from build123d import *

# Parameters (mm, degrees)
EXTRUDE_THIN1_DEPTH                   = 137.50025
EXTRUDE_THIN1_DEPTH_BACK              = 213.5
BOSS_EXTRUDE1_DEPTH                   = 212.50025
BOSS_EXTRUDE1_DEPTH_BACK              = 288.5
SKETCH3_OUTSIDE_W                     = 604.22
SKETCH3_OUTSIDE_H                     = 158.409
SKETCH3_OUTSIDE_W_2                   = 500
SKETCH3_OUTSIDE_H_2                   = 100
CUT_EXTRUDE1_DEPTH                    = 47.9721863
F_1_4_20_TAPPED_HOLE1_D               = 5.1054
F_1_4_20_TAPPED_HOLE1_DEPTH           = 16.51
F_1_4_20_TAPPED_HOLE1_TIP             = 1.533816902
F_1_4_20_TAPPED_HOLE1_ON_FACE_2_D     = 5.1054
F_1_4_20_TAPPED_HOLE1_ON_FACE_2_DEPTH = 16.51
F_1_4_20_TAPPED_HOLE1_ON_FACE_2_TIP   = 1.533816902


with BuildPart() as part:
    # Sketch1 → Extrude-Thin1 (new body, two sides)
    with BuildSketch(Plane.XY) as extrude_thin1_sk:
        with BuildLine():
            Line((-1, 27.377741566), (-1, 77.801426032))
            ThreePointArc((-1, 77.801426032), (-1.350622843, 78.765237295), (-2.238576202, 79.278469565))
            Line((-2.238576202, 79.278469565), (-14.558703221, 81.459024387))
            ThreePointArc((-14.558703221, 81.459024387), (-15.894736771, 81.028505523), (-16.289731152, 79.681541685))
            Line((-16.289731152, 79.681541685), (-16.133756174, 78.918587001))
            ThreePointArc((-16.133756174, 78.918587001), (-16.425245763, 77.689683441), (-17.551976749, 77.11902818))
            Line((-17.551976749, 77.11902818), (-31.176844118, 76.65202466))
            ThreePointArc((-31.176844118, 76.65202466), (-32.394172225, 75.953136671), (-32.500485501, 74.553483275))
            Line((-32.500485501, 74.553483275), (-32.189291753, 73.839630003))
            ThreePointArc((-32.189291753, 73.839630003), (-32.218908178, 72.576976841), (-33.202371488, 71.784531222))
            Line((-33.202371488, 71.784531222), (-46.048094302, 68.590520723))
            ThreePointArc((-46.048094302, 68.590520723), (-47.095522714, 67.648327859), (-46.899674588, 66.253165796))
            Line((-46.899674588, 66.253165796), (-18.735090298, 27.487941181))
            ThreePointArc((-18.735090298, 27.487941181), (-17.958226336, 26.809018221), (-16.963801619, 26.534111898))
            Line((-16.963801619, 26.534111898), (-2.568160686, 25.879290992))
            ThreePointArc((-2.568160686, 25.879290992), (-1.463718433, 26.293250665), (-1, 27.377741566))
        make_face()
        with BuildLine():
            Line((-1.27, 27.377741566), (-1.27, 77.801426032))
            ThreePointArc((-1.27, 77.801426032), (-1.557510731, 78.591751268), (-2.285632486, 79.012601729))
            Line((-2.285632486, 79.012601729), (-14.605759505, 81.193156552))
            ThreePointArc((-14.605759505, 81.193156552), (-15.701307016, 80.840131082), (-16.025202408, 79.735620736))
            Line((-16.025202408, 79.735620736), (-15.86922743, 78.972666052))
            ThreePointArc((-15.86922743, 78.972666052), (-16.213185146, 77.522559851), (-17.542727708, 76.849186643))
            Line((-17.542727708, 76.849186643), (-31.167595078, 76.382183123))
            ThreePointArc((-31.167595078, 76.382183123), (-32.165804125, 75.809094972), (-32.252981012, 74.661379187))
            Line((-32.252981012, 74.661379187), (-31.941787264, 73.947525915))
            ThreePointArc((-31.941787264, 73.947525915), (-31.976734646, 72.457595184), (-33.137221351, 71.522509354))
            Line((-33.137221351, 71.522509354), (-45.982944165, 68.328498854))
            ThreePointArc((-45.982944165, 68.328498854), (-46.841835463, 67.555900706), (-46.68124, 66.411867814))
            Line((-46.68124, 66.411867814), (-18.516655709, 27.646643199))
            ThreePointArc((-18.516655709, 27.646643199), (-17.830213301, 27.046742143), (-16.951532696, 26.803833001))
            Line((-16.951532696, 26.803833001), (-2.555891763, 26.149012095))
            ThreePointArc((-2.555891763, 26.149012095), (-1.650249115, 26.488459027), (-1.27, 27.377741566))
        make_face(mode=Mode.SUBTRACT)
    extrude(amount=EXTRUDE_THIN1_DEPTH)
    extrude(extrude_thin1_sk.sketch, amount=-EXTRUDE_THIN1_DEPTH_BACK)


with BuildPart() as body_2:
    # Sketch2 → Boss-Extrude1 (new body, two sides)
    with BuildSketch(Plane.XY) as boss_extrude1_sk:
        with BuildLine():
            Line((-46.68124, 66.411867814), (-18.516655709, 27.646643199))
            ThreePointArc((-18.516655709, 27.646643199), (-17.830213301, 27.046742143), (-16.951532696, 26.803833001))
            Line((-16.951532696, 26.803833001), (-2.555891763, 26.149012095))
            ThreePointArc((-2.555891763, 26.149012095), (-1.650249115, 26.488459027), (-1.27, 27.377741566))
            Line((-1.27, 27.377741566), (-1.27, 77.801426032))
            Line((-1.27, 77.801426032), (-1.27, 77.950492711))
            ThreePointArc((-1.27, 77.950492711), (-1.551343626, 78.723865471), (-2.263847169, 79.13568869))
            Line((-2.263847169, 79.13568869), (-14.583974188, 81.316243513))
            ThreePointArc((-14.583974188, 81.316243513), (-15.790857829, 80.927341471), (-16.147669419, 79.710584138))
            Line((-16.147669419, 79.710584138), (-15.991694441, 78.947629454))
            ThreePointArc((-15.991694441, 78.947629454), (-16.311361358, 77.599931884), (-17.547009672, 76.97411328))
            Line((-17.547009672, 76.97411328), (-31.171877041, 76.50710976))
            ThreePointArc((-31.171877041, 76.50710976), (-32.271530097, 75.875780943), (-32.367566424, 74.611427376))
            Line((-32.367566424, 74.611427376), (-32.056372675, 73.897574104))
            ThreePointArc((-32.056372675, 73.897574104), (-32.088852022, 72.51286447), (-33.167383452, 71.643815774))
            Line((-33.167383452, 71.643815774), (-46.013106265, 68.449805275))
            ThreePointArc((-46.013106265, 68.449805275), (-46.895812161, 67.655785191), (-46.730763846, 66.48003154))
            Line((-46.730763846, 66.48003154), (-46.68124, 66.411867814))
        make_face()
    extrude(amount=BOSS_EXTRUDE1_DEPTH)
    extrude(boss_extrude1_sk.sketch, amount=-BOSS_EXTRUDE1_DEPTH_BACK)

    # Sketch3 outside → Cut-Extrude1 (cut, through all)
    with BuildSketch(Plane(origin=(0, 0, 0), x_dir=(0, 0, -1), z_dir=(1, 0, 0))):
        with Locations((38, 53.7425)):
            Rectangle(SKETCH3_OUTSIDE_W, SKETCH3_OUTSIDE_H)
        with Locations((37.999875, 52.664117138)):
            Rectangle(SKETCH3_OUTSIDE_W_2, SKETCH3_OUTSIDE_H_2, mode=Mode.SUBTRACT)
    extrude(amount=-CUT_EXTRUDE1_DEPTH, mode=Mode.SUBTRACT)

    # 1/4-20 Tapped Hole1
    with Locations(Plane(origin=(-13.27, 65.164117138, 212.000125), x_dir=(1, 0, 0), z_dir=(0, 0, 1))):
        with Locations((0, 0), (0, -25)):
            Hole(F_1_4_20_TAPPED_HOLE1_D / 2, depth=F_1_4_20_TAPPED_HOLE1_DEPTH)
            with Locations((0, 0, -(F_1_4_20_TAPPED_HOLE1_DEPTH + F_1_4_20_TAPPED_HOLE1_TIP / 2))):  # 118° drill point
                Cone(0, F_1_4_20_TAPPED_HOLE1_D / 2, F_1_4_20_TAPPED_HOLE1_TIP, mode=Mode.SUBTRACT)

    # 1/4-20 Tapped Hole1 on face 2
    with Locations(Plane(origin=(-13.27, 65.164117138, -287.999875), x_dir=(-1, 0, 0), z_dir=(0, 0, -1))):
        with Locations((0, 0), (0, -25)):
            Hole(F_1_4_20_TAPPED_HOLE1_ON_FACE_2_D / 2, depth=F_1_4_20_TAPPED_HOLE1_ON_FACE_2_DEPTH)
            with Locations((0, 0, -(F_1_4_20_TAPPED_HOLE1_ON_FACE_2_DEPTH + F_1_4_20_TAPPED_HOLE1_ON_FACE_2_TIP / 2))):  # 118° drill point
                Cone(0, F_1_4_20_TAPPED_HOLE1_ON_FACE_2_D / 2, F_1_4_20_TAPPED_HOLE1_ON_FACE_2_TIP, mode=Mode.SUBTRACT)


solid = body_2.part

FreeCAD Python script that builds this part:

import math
import FreeCAD as App
import Part
import Sketcher
from FreeCAD import Vector
Q = App.Units.Quantity

doc = App.newDocument("Part")
body = doc.addObject("PartDesign::Body", "Body")

# Sketch on XY plane
sketch1 = body.newObject("Sketcher::SketchObject", "Sketch")
sketch1.AttachmentSupport = (doc.getObject("XY_Plane"), [""])
sketch1.MapMode = "FlatFace"
sketch1.addGeometry([
    Part.LineSegment(Vector(-1, 27.4, 0), Vector(-1, 77.8, 0)),  # 0
    Part.ArcOfCircle(Part.Circle(Vector(-2.5, 77.8, 0), Vector(0, 0, 1), 1.5), math.radians(0), math.radians(80)),  # 1
    Part.LineSegment(Vector(-2.2, 79.3, 0), Vector(-14.6, 81.5, 0)),  # 2
    Part.ArcOfCircle(Part.Circle(Vector(-14.8, 80, 0), Vector(0, 0, 1), 1.5), math.radians(80), math.radians(192)),  # 3
    Part.LineSegment(Vector(-16.3, 79.7, 0), Vector(-16.1, 78.9, 0)),  # 4
    Part.ArcOfCircle(Part.Circle(Vector(-17.6, 78.6, 0), Vector(0, 0, 1), 1.5), math.radians(-88), math.radians(12)),  # 5
    Part.LineSegment(Vector(-17.6, 77.1, 0), Vector(-31.2, 76.7, 0)),  # 6
    Part.ArcOfCircle(Part.Circle(Vector(-31.1, 75.2, 0), Vector(0, 0, 1), 1.5), math.radians(92), math.radians(204)),  # 7
    Part.LineSegment(Vector(-32.5, 74.6, 0), Vector(-32.2, 73.8, 0)),  # 8
    Part.ArcOfCircle(Part.Circle(Vector(-33.6, 73.2, 0), Vector(0, 0, 1), 1.5), math.radians(-76), math.radians(24)),  # 9
    Part.LineSegment(Vector(-33.2, 71.8, 0), Vector(-46, 68.6, 0)),  # 10
    Part.ArcOfCircle(Part.Circle(Vector(-45.7, 67.1, 0), Vector(0, 0, 1), 1.5), math.radians(104), math.radians(216)),  # 11
    Part.LineSegment(Vector(-46.9, 66.3, 0), Vector(-18.7, 27.5, 0)),  # 12
    Part.ArcOfCircle(Part.Circle(Vector(-16.9, 28.9, 0), Vector(0, 0, 1), 2.3), math.radians(-144), math.radians(-93)),  # 13
    Part.LineSegment(Vector(-17, 26.5, 0), Vector(-2.6, 25.9, 0)),  # 14
    Part.ArcOfCircle(Part.Circle(Vector(-2.5, 27.4, 0), Vector(0, 0, 1), 1.5), math.radians(-93), math.radians(0)),  # 15
    Part.LineSegment(Vector(-1.3, 77.8, 0), Vector(-1.3, 27.4, 0)),  # 16
    Part.ArcOfCircle(Part.Circle(Vector(-2.5, 27.4, 0), Vector(0, 0, 1), 1.2), math.radians(-93), math.radians(0)),  # 17
    Part.LineSegment(Vector(-2.6, 26.1, 0), Vector(-17, 26.8, 0)),  # 18
    Part.ArcOfCircle(Part.Circle(Vector(-16.9, 28.9, 0), Vector(0, 0, 1), 2), math.radians(-144), math.radians(-93)),  # 19
    Part.LineSegment(Vector(-18.5, 27.6, 0), Vector(-46.7, 66.4, 0)),  # 20
    Part.ArcOfCircle(Part.Circle(Vector(-45.7, 67.1, 0), Vector(0, 0, 1), 1.2), math.radians(104), math.radians(216)),  # 21
    Part.LineSegment(Vector(-46, 68.3, 0), Vector(-33.1, 71.5, 0)),  # 22
    Part.ArcOfCircle(Part.Circle(Vector(-33.6, 73.2, 0), Vector(0, 0, 1), 1.8), math.radians(-76), math.radians(24)),  # 23
    Part.LineSegment(Vector(-31.9, 73.9, 0), Vector(-32.3, 74.7, 0)),  # 24
    Part.ArcOfCircle(Part.Circle(Vector(-31.1, 75.2, 0), Vector(0, 0, 1), 1.2), math.radians(92), math.radians(204)),  # 25
    Part.LineSegment(Vector(-31.2, 76.4, 0), Vector(-17.5, 76.8, 0)),  # 26
    Part.ArcOfCircle(Part.Circle(Vector(-17.6, 78.6, 0), Vector(0, 0, 1), 1.8), math.radians(-88), math.radians(12)),  # 27
    Part.LineSegment(Vector(-15.9, 79, 0), Vector(-16, 79.7, 0)),  # 28
    Part.ArcOfCircle(Part.Circle(Vector(-14.8, 80, 0), Vector(0, 0, 1), 1.2), math.radians(80), math.radians(192)),  # 29
    Part.LineSegment(Vector(-14.6, 81.2, 0), Vector(-2.3, 79, 0)),  # 30
    Part.ArcOfCircle(Part.Circle(Vector(-2.5, 77.8, 0), Vector(0, 0, 1), 1.2), math.radians(0), math.radians(80)),  # 31
], False)
sketch1.addConstraint([
    Sketcher.Constraint("Tangent", 0, 2, 1, 1),
    Sketcher.Constraint("Tangent", 1, 2, 2, 1),
    Sketcher.Constraint("Tangent", 2, 2, 3, 1),
    Sketcher.Constraint("Tangent", 3, 2, 4, 1),
    Sketcher.Constraint("Tangent", 4, 2, 5, 2),
    Sketcher.Constraint("Tangent", 5, 1, 6, 1),
    Sketcher.Constraint("Tangent", 6, 2, 7, 1),
    Sketcher.Constraint("Tangent", 7, 2, 8, 1),
    Sketcher.Constraint("Tangent", 8, 2, 9, 2),
    Sketcher.Constraint("Tangent", 9, 1, 10, 1),
    Sketcher.Constraint("Tangent", 10, 2, 11, 1),
    Sketcher.Constraint("Tangent", 11, 2, 12, 1),
    Sketcher.Constraint("Tangent", 12, 2, 13, 1),
    Sketcher.Constraint("Tangent", 13, 2, 14, 1),
    Sketcher.Constraint("Tangent", 14, 2, 15, 1),
    Sketcher.Constraint("Tangent", 15, 2, 0, 1),
    Sketcher.Constraint("Tangent", 16, 2, 17, 2),
    Sketcher.Constraint("Tangent", 17, 1, 18, 1),
    Sketcher.Constraint("Tangent", 18, 2, 19, 2),
    Sketcher.Constraint("Tangent", 19, 1, 20, 1),
    Sketcher.Constraint("Tangent", 20, 2, 21, 2),
    Sketcher.Constraint("Tangent", 21, 1, 22, 1),
    Sketcher.Constraint("Tangent", 22, 2, 23, 1),
    Sketcher.Constraint("Tangent", 23, 2, 24, 1),
    Sketcher.Constraint("Tangent", 24, 2, 25, 2),
    Sketcher.Constraint("Tangent", 25, 1, 26, 1),
    Sketcher.Constraint("Tangent", 26, 2, 27, 1),
    Sketcher.Constraint("Tangent", 27, 2, 28, 1),
    Sketcher.Constraint("Tangent", 28, 2, 29, 2),
    Sketcher.Constraint("Tangent", 29, 1, 30, 1),
    Sketcher.Constraint("Tangent", 30, 2, 31, 2),
    Sketcher.Constraint("Tangent", 31, 1, 16, 1),
    Sketcher.Constraint("Vertical", 0),
    Sketcher.Constraint("Vertical", 16),
    Sketcher.Constraint("Coincident", 17, 3, 15, 3),
    Sketcher.Constraint("Coincident", 19, 3, 13, 3),
    Sketcher.Constraint("Coincident", 21, 3, 11, 3),
    Sketcher.Constraint("Coincident", 23, 3, 9, 3),
    Sketcher.Constraint("Coincident", 25, 3, 7, 3),
    Sketcher.Constraint("Coincident", 27, 3, 5, 3),
    Sketcher.Constraint("Coincident", 29, 3, 3, 3),
    Sketcher.Constraint("Coincident", 31, 3, 1, 3),
    Sketcher.Constraint("Equal", 1, 3),
    Sketcher.Constraint("Equal", 3, 5),
    Sketcher.Constraint("Equal", 5, 7),
    Sketcher.Constraint("Equal", 7, 9),
    Sketcher.Constraint("Equal", 9, 11),
    Sketcher.Constraint("Equal", 11, 15),
    Sketcher.Constraint("Equal", 17, 21),
    Sketcher.Constraint("Equal", 21, 25),
    Sketcher.Constraint("Equal", 23, 27),
    Sketcher.Constraint("Equal", 25, 29),
    Sketcher.Constraint("Parallel", 14, 18),
    Sketcher.Constraint("Parallel", 10, 22),
    Sketcher.Constraint("Equal", 4, 8),
    Sketcher.Constraint("Radius", 1, 1.5),
    Sketcher.Constraint("Angle", 12, Q("-54 deg")),
    Sketcher.Constraint("Radius", 17, 1.23),
    Sketcher.Constraint("DistanceX", 0, 2, -1, 1, 1.0),
    Sketcher.Constraint("Radius", 13, 2.319726),
    Sketcher.Constraint("DistanceX", 13, 2, -1, 1, 16.963802),
    Sketcher.Constraint("DistanceY", -1, 1, 21, 1, 68.328499),
    Sketcher.Constraint("DistanceY", -1, 1, 30, 2, 79.012602),
    Sketcher.Constraint("DistanceX", 7, 3, 5, 3, 13.5221),
    Sketcher.Constraint("DistanceY", 13, 3, 11, 3, 38.283402),
    Sketcher.Constraint("DistanceY", 15, 3, 13, 3, 1.473701),
    Sketcher.Constraint("DistanceY", 9, 1, 8, 2, 2.055099),
    Sketcher.Constraint("DistanceY", 22, 2, 9, 3, 1.717699),
    Sketcher.Constraint("DistanceX", 7, 2, 23, 2, 0.558698),
    Sketcher.Constraint("DistanceY", 26, 2, 4, 2, 2.0694),
    Sketcher.Constraint("Distance", 2, 12.511609),
    Sketcher.Constraint("Distance", 6, 13.632868),
])
pad1 = body.newObject("PartDesign::Pad", "Pad")
pad1.Profile = sketch1
pad1.Type = "TwoLengths"
pad1.Length = 137.50025
pad1.Length2 = 213.5
body2 = doc.addObject("PartDesign::Body", "Body001")

# Sketch on XY plane
sketch2 = body2.newObject("Sketcher::SketchObject", "Sketch001")
sketch2.AttachmentSupport = (doc.getObject("XY_Plane001"), [""])
sketch2.MapMode = "FlatFace"
sketch2.addGeometry([
    Part.LineSegment(Vector(-46.68, 66.41, 0), Vector(-18.52, 27.65, 0)),  # 0
    Part.ArcOfCircle(Part.Circle(Vector(-16.86, 28.85, 0), Vector(0, 0, 1), 2.05), math.radians(-144), math.radians(-93)),  # 1
    Part.LineSegment(Vector(-16.95, 26.8, 0), Vector(-2.56, 26.15, 0)),  # 2
    Part.ArcOfCircle(Part.Circle(Vector(-2.5, 27.38, 0), Vector(0, 0, 1), 1.23), math.radians(-93), math.radians(0)),  # 3
    Part.LineSegment(Vector(-1.27, 27.38, 0), Vector(-1.27, 77.95, 0)),  # 4
    Part.ArcOfCircle(Part.Circle(Vector(-2.47, 77.95, 0), Vector(0, 0, 1), 1.2), math.radians(0), math.radians(80)),  # 5
    Part.LineSegment(Vector(-2.26, 79.14, 0), Vector(-14.58, 81.32, 0)),  # 6
    Part.ArcOfCircle(Part.Circle(Vector(-14.82, 79.98, 0), Vector(0, 0, 1), 1.36), math.radians(80), math.radians(192)),  # 7
    Part.LineSegment(Vector(-16.15, 79.71, 0), Vector(-15.99, 78.95, 0)),  # 8
    Part.ArcOfCircle(Part.Circle(Vector(-17.6, 78.62, 0), Vector(0, 0, 1), 1.65), math.radians(-88), math.radians(12)),  # 9
    Part.LineSegment(Vector(-17.55, 76.97, 0), Vector(-31.17, 76.51, 0)),  # 10
    Part.ArcOfCircle(Part.Circle(Vector(-31.13, 75.15, 0), Vector(0, 0, 1), 1.36), math.radians(92), math.radians(204)),  # 11
    Part.LineSegment(Vector(-32.37, 74.61, 0), Vector(-32.06, 73.9, 0)),  # 12
    Part.ArcOfCircle(Part.Circle(Vector(-33.56, 73.24, 0), Vector(0, 0, 1), 1.65), math.radians(-76), math.radians(24)),  # 13
    Part.LineSegment(Vector(-33.17, 71.64, 0), Vector(-46.01, 68.45, 0)),  # 14
    Part.ArcOfCircle(Part.Circle(Vector(-45.71, 67.22, 0), Vector(0, 0, 1), 1.26), math.radians(104), math.radians(216)),  # 15
    Part.LineSegment(Vector(-46.73, 66.48, 0), Vector(-46.68, 66.41, 0)),  # 16
], False)
sketch2.addConstraint([
    Sketcher.Constraint("Tangent", 0, 2, 1, 1),
    Sketcher.Constraint("Tangent", 1, 2, 2, 1),
    Sketcher.Constraint("Tangent", 2, 2, 3, 1),
    Sketcher.Constraint("Tangent", 3, 2, 4, 1),
    Sketcher.Constraint("Tangent", 4, 2, 5, 1),
    Sketcher.Constraint("Tangent", 5, 2, 6, 1),
    Sketcher.Constraint("Tangent", 6, 2, 7, 1),
    Sketcher.Constraint("Tangent", 7, 2, 8, 1),
    Sketcher.Constraint("Tangent", 8, 2, 9, 2),
    Sketcher.Constraint("Tangent", 9, 1, 10, 1),
    Sketcher.Constraint("Tangent", 10, 2, 11, 1),
    Sketcher.Constraint("Tangent", 11, 2, 12, 1),
    Sketcher.Constraint("Tangent", 12, 2, 13, 2),
    Sketcher.Constraint("Tangent", 13, 1, 14, 1),
    Sketcher.Constraint("Tangent", 14, 2, 15, 1),
    Sketcher.Constraint("Tangent", 15, 2, 16, 1),
    Sketcher.Constraint("Coincident", 16, 2, 0, 1),
    Sketcher.Constraint("Vertical", 4),
    Sketcher.Constraint("Equal", 7, 11),
    Sketcher.Constraint("Equal", 9, 13),
    Sketcher.Constraint("Parallel", 0, 16),
    Sketcher.Constraint("Equal", 8, 12),
    Sketcher.Constraint("Angle", 0, Q("-54 deg")),
    Sketcher.Constraint("Radius", 3, 1.23),
    Sketcher.Constraint("Radius", 7, 1.355),
    Sketcher.Constraint("Radius", 9, 1.645),
    Sketcher.Constraint("DistanceX", 3, 3, -1, 1, 2.5),
    Sketcher.Constraint("Radius", 1, 2.049726),
    Sketcher.Constraint("Radius", 5, 1.203617),
    Sketcher.Constraint("Radius", 15, 1.264104),
    Sketcher.Constraint("DistanceY", 4, 1, 4, 2, 50.572751),
    Sketcher.Constraint("DistanceY", 3, 3, 1, 3, 1.473701),
    Sketcher.Constraint("DistanceX", 11, 3, 9, 3, 13.5221),
    Sketcher.Constraint("DistanceX", 13, 3, 5, 3, 31.0907),
    Sketcher.Constraint("DistanceX", 1, 3, 2, 2, 14.3025),
    Sketcher.Constraint("DistanceY", 13, 3, 10, 2, 3.266901),
    Sketcher.Constraint("Distance", 6, 12.511609),
    Sketcher.Constraint("Distance", 10, 13.632868),
    Sketcher.Constraint("DistanceY", -1, 1, 3, 3, 27.377742),
    Sketcher.Constraint("DistanceY", -1, 1, 7, 3, 79.981981),
    Sketcher.Constraint("DistanceX", 9, 3, -1, 1, 17.60336),
    Sketcher.Constraint("DistanceX", 15, 3, -1, 1, 45.708082),
    Sketcher.Constraint("DistanceX", 16, 2, -1, 1, 46.68124),
])
pad2 = body2.newObject("PartDesign::Pad", "Pad001")
pad2.Profile = sketch2
pad2.Type = "TwoLengths"
pad2.Length = 212.50025
pad2.Length2 = 288.5

# Sketch on YZ plane
sketch3 = body2.newObject("Sketcher::SketchObject", "Sketch002")
sketch3.AttachmentSupport = (doc.getObject("YZ_Plane001"), [""])
sketch3.MapMode = "FlatFace"
sketch3.addGeometry([
    Part.LineSegment(Vector(133, 264, 0), Vector(-25, 264, 0)),  # 0
    Part.LineSegment(Vector(-25, 264, 0), Vector(-25, -340, 0)),  # 1
    Part.LineSegment(Vector(-25, -340, 0), Vector(133, -340, 0)),  # 2
    Part.LineSegment(Vector(133, -340, 0), Vector(133, 264, 0)),  # 3
    Part.LineSegment(Vector(3, -288, 0), Vector(3, 212, 0)),  # 4
    Part.LineSegment(Vector(3, 212, 0), Vector(103, 212, 0)),  # 5
    Part.LineSegment(Vector(103, 212, 0), Vector(103, -288, 0)),  # 6
    Part.LineSegment(Vector(103, -288, 0), Vector(3, -288, 0)),  # 7
], False)
sketch3.addConstraint([
    Sketcher.Constraint("Coincident", 0, 2, 1, 1),
    Sketcher.Constraint("Coincident", 1, 2, 2, 1),
    Sketcher.Constraint("Coincident", 2, 2, 3, 1),
    Sketcher.Constraint("Coincident", 3, 2, 0, 1),
    Sketcher.Constraint("Coincident", 4, 2, 5, 1),
    Sketcher.Constraint("Coincident", 5, 2, 6, 1),
    Sketcher.Constraint("Coincident", 6, 2, 7, 1),
    Sketcher.Constraint("Coincident", 7, 2, 4, 1),
    Sketcher.Constraint("Horizontal", 0),
    Sketcher.Constraint("Vertical", 1),
    Sketcher.Constraint("Horizontal", 2),
    Sketcher.Constraint("Vertical", 3),
    Sketcher.Constraint("Vertical", 4),
    Sketcher.Constraint("Horizontal", 5),
    Sketcher.Constraint("Vertical", 6),
    Sketcher.Constraint("Horizontal", 7),
    Sketcher.Constraint("DistanceX", 5, 1, 5, 2, 100.0),
    Sketcher.Constraint("DistanceY", 4, 1, 4, 2, 500.0),
    Sketcher.Constraint("DistanceY", 1, 2, 1, 1, 604.22),
    Sketcher.Constraint("DistanceX", 0, 2, 0, 1, 158.409),
    Sketcher.Constraint("DistanceY", -1, 1, 0, 2, 264.11),
    Sketcher.Constraint("DistanceX", 0, 2, -1, 1, 25.462),
    Sketcher.Constraint("DistanceX", -1, 1, 4, 2, 2.664117),
    Sketcher.Constraint("DistanceY", -1, 1, 4, 2, 212.000125),
])
pocket1 = body2.newObject("PartDesign::Pocket", "Pocket")
pocket1.Profile = sketch3
pocket1.Type = "ThroughAll"

# Sketch on XY plane
sketch4 = body2.newObject("Sketcher::SketchObject", "Sketch003")
sketch4.AttachmentSupport = (doc.getObject("XY_Plane001"), [""])
sketch4.MapMode = "FlatFace"
sketch4.AttachmentOffset = App.Placement(Vector(0, 0, 212.000125), App.Rotation())
sketch4.addGeometry([
    Part.Circle(Vector(-13.3, 65.2, 0), Vector(0, 0, 1), 2.6),
    Part.Circle(Vector(-13.3, 40.2, 0), Vector(0, 0, 1), 2.6),
], False)
sketch4.addConstraint([
    Sketcher.Constraint("Equal", 0, 1),
    Sketcher.Constraint("Vertical", 0, 3, 1, 3),
    Sketcher.Constraint("DistanceY", 1, 3, 0, 3, 25.0),
    Sketcher.Constraint("Diameter", 0, 5.1054),
    Sketcher.Constraint("DistanceX", 0, 3, -1, 1, 13.27),
    Sketcher.Constraint("DistanceY", -1, 1, 0, 3, 65.164117),
])
doc.recompute()
hole = body2.newObject("PartDesign::Hole", "Hole")
hole.Profile = sketch4
hole.ThreadType = "None"
hole.Diameter = 5.1054
hole.DepthType = "Dimension"
hole.Depth = 16.51
hole.DrillPoint = "Angled"
hole.DrillPointAngle = 118

# Sketch on XY plane
sketch5 = body2.newObject("Sketcher::SketchObject", "Sketch004")
sketch5.AttachmentSupport = (doc.getObject("XY_Plane001"), [""])
sketch5.MapMode = "FlatFace"
sketch5.AttachmentOffset = App.Placement(Vector(0, 0, -287.999875), App.Rotation())
sketch5.addGeometry([
    Part.Circle(Vector(-13.3, 65.2, 0), Vector(0, 0, 1), 2.6),
    Part.Circle(Vector(-13.3, 40.2, 0), Vector(0, 0, 1), 2.6),
], False)
sketch5.addConstraint([
    Sketcher.Constraint("Equal", 0, 1),
    Sketcher.Constraint("Vertical", 0, 3, 1, 3),
    Sketcher.Constraint("DistanceY", 1, 3, 0, 3, 25.0),
    Sketcher.Constraint("Diameter", 0, 5.1054),
    Sketcher.Constraint("DistanceX", 0, 3, -1, 1, 13.27),
    Sketcher.Constraint("DistanceY", -1, 1, 0, 3, 65.164117),
])
doc.recompute()
hole2 = body2.newObject("PartDesign::Hole", "Hole001")
hole2.Profile = sketch5
hole2.ThreadType = "None"
hole2.Diameter = 5.1054
hole2.DepthType = "Dimension"
hole2.Depth = 16.51
hole2.DrillPoint = "Angled"
hole2.DrillPointAngle = 118
hole2.Reversed = True
body.Visibility = False

doc.recompute()
